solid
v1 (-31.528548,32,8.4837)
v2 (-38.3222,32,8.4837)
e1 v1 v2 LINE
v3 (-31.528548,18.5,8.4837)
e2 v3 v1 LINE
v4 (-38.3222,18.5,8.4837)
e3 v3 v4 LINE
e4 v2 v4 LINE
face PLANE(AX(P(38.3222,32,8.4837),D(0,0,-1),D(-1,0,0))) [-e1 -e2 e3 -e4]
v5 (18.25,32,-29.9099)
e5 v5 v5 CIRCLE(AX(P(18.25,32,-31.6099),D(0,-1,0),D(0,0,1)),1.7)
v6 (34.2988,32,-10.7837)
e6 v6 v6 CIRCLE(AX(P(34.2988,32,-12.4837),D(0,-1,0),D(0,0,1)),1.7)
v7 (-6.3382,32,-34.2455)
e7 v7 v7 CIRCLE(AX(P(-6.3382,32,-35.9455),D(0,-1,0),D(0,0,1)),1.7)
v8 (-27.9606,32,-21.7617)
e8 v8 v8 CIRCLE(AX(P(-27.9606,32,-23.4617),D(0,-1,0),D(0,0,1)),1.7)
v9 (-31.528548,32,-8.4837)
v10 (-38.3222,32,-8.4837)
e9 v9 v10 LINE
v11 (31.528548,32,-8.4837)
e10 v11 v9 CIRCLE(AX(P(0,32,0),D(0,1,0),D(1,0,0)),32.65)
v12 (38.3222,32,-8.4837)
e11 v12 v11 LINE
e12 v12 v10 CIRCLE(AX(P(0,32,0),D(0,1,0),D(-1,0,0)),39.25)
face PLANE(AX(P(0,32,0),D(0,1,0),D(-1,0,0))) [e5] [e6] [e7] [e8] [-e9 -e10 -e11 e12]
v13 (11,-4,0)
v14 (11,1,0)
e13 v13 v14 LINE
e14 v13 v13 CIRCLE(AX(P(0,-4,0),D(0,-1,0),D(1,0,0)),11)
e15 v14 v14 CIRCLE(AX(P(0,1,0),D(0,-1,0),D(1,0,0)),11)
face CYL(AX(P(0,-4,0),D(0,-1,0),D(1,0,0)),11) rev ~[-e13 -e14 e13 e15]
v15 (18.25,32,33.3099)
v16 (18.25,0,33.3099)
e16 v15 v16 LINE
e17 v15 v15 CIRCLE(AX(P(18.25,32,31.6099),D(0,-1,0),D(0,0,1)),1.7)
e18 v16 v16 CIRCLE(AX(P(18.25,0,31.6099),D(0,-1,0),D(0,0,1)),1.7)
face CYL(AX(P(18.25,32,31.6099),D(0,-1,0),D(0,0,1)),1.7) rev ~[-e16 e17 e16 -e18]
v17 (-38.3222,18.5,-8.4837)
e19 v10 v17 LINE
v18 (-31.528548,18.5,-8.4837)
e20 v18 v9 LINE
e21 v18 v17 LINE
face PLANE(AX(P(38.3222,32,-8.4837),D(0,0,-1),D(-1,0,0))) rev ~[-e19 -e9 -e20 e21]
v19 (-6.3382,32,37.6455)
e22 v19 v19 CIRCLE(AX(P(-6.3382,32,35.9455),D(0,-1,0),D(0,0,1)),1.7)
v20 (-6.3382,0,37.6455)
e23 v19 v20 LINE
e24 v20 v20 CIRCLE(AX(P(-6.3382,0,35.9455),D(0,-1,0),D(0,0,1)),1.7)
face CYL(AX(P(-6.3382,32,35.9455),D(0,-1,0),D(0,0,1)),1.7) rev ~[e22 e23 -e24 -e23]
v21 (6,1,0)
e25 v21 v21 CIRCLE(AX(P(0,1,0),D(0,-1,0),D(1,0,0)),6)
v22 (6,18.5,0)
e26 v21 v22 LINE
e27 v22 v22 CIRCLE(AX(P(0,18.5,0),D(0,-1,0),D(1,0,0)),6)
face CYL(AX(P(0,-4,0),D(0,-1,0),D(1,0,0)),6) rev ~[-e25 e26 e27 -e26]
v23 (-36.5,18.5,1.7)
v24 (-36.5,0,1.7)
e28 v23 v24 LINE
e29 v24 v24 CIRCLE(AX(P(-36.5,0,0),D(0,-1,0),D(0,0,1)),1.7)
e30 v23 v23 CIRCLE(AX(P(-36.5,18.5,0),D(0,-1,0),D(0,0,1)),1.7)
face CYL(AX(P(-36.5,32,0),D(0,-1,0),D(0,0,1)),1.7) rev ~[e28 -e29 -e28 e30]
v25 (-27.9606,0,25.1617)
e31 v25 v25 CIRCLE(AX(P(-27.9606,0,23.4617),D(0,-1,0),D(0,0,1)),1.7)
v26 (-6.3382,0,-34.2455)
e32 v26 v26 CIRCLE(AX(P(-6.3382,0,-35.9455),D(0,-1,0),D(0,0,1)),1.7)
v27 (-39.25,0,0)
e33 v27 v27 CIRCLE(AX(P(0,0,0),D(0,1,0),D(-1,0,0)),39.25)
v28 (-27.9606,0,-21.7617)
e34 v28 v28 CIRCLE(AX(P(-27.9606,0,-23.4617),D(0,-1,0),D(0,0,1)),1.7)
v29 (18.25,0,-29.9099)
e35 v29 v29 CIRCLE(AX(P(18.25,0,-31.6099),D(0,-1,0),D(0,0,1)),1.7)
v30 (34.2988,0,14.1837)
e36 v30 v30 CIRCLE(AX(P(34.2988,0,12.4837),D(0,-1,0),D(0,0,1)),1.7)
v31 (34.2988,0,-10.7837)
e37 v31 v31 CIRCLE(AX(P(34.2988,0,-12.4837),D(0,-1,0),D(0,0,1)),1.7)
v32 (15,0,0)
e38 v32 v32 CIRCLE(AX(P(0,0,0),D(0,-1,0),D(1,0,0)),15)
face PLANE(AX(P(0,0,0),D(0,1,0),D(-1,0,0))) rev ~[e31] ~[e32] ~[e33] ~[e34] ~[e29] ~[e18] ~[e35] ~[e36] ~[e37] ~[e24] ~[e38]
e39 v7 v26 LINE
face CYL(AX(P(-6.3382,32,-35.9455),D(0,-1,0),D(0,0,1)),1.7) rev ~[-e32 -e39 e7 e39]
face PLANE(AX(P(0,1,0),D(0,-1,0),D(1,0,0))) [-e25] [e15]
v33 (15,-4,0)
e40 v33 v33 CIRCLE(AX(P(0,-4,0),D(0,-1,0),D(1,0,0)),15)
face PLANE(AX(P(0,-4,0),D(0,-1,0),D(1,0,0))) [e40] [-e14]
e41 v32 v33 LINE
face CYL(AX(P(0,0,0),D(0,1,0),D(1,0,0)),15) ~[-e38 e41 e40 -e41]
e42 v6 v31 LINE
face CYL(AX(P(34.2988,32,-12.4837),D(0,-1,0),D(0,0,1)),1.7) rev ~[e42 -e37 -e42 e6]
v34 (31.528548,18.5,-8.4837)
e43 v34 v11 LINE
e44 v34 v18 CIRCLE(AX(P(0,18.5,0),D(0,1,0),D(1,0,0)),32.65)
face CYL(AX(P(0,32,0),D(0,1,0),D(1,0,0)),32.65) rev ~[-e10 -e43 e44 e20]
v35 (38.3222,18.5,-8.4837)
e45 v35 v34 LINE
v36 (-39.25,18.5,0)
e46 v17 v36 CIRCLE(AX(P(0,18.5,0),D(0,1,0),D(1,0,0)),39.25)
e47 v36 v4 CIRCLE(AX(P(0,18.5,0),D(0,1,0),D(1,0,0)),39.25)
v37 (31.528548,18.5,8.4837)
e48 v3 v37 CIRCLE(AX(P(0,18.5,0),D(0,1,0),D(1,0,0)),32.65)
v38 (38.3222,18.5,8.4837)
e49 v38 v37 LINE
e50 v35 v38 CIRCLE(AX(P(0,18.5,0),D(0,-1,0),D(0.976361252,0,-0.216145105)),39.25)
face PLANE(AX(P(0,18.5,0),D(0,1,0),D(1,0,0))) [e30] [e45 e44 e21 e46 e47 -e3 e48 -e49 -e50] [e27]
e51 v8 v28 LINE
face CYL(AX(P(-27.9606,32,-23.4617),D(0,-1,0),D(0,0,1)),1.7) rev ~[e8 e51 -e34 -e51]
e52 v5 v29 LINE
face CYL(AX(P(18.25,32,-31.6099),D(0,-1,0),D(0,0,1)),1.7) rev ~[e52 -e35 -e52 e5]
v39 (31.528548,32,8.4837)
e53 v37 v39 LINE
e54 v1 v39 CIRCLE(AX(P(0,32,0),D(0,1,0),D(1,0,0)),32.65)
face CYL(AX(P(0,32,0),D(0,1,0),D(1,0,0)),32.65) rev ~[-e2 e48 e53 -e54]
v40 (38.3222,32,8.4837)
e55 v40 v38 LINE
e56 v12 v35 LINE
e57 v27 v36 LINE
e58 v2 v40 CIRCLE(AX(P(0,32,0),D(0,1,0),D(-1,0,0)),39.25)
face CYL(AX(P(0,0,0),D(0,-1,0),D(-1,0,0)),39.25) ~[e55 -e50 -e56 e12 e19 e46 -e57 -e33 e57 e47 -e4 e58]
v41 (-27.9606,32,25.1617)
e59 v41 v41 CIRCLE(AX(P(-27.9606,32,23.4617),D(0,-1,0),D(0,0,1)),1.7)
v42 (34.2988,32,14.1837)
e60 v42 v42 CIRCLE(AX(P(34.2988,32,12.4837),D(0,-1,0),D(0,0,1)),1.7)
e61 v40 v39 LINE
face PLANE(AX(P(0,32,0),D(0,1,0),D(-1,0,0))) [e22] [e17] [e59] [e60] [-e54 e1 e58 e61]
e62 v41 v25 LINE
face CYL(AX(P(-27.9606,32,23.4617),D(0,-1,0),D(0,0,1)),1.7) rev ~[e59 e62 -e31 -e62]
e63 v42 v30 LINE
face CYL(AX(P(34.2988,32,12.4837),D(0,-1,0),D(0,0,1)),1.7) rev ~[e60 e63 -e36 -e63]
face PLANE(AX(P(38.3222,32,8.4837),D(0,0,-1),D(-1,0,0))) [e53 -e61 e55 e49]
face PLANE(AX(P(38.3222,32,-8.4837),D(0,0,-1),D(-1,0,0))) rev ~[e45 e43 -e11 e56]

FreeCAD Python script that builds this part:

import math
import FreeCAD as App
import Part
import Sketcher

V = App.Vector

doc = App.newDocument("Part")
body = doc.addObject("PartDesign::Body", "Body")

# Sketch on XZ plane
sketch1 = body.newObject("Sketcher::SketchObject", "Sketch")
sketch1.AttachmentSupport = (doc.getObject("XZ_Plane"), [""])
sketch1.MapMode = "FlatFace"
sketch1.addGeometry(Part.Circle(V(0, 0, 0), V(0, 0, 1), 39.25), False)
sketch1.addConstraint([
    Sketcher.Constraint("Coincident", 0, 3, -1, 1),
    Sketcher.Constraint("Diameter", 0, 78.5),
])
pad1 = body.newObject("PartDesign::Pad", "Pad")
pad1.Profile = sketch1
pad1.Length = 32
pad1.Reversed = True

# Sketch on XZ plane
sketch2 = body.newObject("Sketcher::SketchObject", "Sketch001")
sketch2.AttachmentSupport = (doc.getObject("XZ_Plane"), [""])
sketch2.MapMode = "FlatFace"
sketch2.AttachmentOffset = App.Placement(V(0, 0, -32), App.Rotation())
sketch2.addGeometry(Part.Circle(V(0, 0, 0), V(0, 0, 1), 32.65), False)
sketch2.addConstraint([
    Sketcher.Constraint("Coincident", 0, 3, -1, 1),
    Sketcher.Constraint("Diameter", 0, 65.3),
])
pocket1 = body.newObject("PartDesign::Pocket", "Pocket")
pocket1.Profile = sketch2
pocket1.Length = 13.5
pocket1.Reversed = True

# Sketch on XZ plane
sketch3 = body.newObject("Sketcher::SketchObject", "Sketch002")
sketch3.AttachmentSupport = (doc.getObject("XZ_Plane"), [""])
sketch3.MapMode = "FlatFace"
sketch3.AttachmentOffset = App.Placement(V(0, 0, -32), App.Rotation())
sketch3.addGeometry([
    Part.Circle(V(-36.5, 0, 0), V(0, 0, 1), 1.7),  # 0
    Part.Circle(V(-27.9606, 23.4617, 0), V(0, 0, 1), 1.7),  # 1
    Part.Circle(V(-6.3382, 35.9455, 0), V(0, 0, 1), 1.7),  # 2
    Part.Circle(V(18.25, 31.6099, 0), V(0, 0, 1), 1.7),  # 3
    Part.Circle(V(34.2988, 12.4837, 0), V(0, 0, 1), 1.7),  # 4
    Part.Circle(V(34.2988, -12.4837, 0), V(0, 0, 1), 1.7),  # 5
    Part.Circle(V(18.25, -31.6099, 0), V(0, 0, 1), 1.7),  # 6
    Part.Circle(V(-6.3382, -35.9455, 0), V(0, 0, 1), 1.7),  # 7
    Part.Circle(V(-27.9606, -23.4617, 0), V(0, 0, 1), 1.7),  # 8
], False)
sketch3.addConstraint([
    Sketcher.Constraint("Equal", 0, 1),
    Sketcher.Constraint("Equal", 1, 2),
    Sketcher.Constraint("Equal", 2, 3),
    Sketcher.Constraint("Equal", 3, 4),
    Sketcher.Constraint("Equal", 4, 5),
    Sketcher.Constraint("Equal", 5, 6),
    Sketcher.Constraint("Equal", 6, 7),
    Sketcher.Constraint("Equal", 7, 8),
    Sketcher.Constraint("Symmetric", 4, 3, 5, 3, -1),
    Sketcher.Constraint("Symmetric", 3, 3, 6, 3, -1),
    Sketcher.Constraint("Symmetric", 2, 3, 7, 3, -1),
    Sketcher.Constraint("Symmetric", 1, 3, 8, 3, -1),
    Sketcher.Constraint("PointOnObject", 0, 3, -1),
    Sketcher.Constraint("Diameter", 0, 3.4),
    Sketcher.Constraint("DistanceX", 0, 3, -1, 1, 36.5),
    Sketcher.Constraint("DistanceX", -1, 1, 3, 3, 18.25),
    Sketcher.Constraint("DistanceY", -1, 1, 3, 3, 31.61),
    Sketcher.Constraint("DistanceX", 2, 3, 4, 3, 40.637),
    Sketcher.Constraint("DistanceY", 4, 3, 1, 3, 10.978),
    Sketcher.Constraint("DistanceX", 1, 3, -1, 1, 27.9606),
    Sketcher.Constraint("DistanceY", -1, 1, 1, 3, 23.4617),
    Sketcher.Constraint("DistanceX", 2, 3, -1, 1, 6.3382),
    Sketcher.Constraint("DistanceY", -1, 1, 2, 3, 35.9455),
])
doc.recompute()
hole = body.newObject("PartDesign::Hole", "Hole")
hole.Profile = sketch3
hole.ThreadType = "None"
hole.Diameter = 3.4
hole.DepthType = "ThroughAll"
hole.Reversed = True

# Sketch on XZ plane
sketch4 = body.newObject("Sketcher::SketchObject", "Sketch003")
sketch4.AttachmentSupport = (doc.getObject("XZ_Plane"), [""])
sketch4.MapMode = "FlatFace"
sketch4.AttachmentOffset = App.Placement(V(0, 0, -32), App.Rotation())
sketch4.addGeometry([
    Part.ArcOfCircle(Part.Circle(V(0, 0, 0), V(0, 0, 1), 39.25), math.radians(-12.482717), math.radians(12.482717)),
    Part.LineSegment(V(38.3222, -8.4837, 0), V(-38.3222, -8.4837, 0)),
    Part.ArcOfCircle(Part.Circle(V(0, 0, 0), V(0, 0, 1), 39.25), math.radians(167.517283), math.radians(192.482717)),
    Part.LineSegment(V(-38.3222, 8.4837, 0), V(38.3222, 8.4837, 0)),
], False)
sketch4.addConstraint([
    Sketcher.Constraint("Coincident", 0, 1, 1, 1),
    Sketcher.Constraint("Coincident", 1, 2, 2, 2),
    Sketcher.Constraint("Coincident", 2, 1, 3, 1),
    Sketcher.Constraint("Coincident", 3, 2, 0, 2),
    Sketcher.Constraint("Horizontal", 1),
    Sketcher.Constraint("Horizontal", 3),
    Sketcher.Constraint("Coincident", 0, 3, -1, 1),
    Sketcher.Constraint("Coincident", 2, 3, -1, 1),
    Sketcher.Constraint("Equal", 0, 2),
    Sketcher.Constraint("Vertical", 1, 2, 2, 1),
    Sketcher.Constraint("Radius", 0, 39.25),
    Sketcher.Constraint("DistanceX", 1, 2, 1, 1, 76.6444),
])
pocket2 = body.newObject("PartDesign::Pocket", "Pocket001")
pocket2.Profile = sketch4
pocket2.Length = 13.5
pocket2.Reversed = True

# Sketch on XZ plane
sketch5 = body.newObject("Sketcher::SketchObject", "Sketch004")
sketch5.AttachmentSupport = (doc.getObject("XZ_Plane"), [""])
sketch5.MapMode = "FlatFace"
sketch5.addGeometry(Part.Circle(V(0, 0, 0), V(0, 0, 1), 15), False)
sketch5.addConstraint([
    Sketcher.Constraint("Coincident", 0, 3, -1, 1),
    Sketcher.Constraint("Diameter", 0, 30.0),
])
pad2 = body.newObject("PartDesign::Pad", "Pad001")
pad2.Profile = sketch5
pad2.Length = 4

# Sketch on XZ plane
sketch6 = body.newObject("Sketcher::SketchObject", "Sketch005")
sketch6.AttachmentSupport = (doc.getObject("XZ_Plane"), [""])
sketch6.MapMode = "FlatFace"
sketch6.AttachmentOffset = App.Placement(V(0, 0, 4), App.Rotation())
sketch6.addGeometry(Part.Circle(V(0, 0, 0), V(0, 0, 1), 6), False)
sketch6.addConstraint([
    Sketcher.Constraint("Coincident", 0, 3, -1, 1),
    Sketcher.Constraint("Diameter", 0, 12.0),
])
pocket3 = body.newObject("PartDesign::Pocket", "Pocket002")
pocket3.Profile = sketch6
pocket3.Length = 40

# Sketch on XZ plane
sketch7 = body.newObject("Sketcher::SketchObject", "Sketch006")
sketch7.AttachmentSupport = (doc.getObject("XZ_Plane"), [""])
sketch7.MapMode = "FlatFace"
sketch7.AttachmentOffset = App.Placement(V(0, 0, 4), App.Rotation())
sketch7.addGeometry([
    Part.Circle(V(0, 0, 0), V(0, 0, 1), 11),
    Part.Circle(V(0, 0, 0), V(0, 0, 1), 6),
], False)
sketch7.addConstraint([
    Sketcher.Constraint("Coincident", 0, 3, -1, 1),
    Sketcher.Constraint("Coincident", 1, 3, -1, 1),
    Sketcher.Constraint("Diameter", 0, 22.0),
    Sketcher.Constraint("Diameter", 1, 12.0),
])
pocket4 = body.newObject("PartDesign::Pocket", "Pocket003")
pocket4.Profile = sketch7
pocket4.Length = 5

doc.recompute()
